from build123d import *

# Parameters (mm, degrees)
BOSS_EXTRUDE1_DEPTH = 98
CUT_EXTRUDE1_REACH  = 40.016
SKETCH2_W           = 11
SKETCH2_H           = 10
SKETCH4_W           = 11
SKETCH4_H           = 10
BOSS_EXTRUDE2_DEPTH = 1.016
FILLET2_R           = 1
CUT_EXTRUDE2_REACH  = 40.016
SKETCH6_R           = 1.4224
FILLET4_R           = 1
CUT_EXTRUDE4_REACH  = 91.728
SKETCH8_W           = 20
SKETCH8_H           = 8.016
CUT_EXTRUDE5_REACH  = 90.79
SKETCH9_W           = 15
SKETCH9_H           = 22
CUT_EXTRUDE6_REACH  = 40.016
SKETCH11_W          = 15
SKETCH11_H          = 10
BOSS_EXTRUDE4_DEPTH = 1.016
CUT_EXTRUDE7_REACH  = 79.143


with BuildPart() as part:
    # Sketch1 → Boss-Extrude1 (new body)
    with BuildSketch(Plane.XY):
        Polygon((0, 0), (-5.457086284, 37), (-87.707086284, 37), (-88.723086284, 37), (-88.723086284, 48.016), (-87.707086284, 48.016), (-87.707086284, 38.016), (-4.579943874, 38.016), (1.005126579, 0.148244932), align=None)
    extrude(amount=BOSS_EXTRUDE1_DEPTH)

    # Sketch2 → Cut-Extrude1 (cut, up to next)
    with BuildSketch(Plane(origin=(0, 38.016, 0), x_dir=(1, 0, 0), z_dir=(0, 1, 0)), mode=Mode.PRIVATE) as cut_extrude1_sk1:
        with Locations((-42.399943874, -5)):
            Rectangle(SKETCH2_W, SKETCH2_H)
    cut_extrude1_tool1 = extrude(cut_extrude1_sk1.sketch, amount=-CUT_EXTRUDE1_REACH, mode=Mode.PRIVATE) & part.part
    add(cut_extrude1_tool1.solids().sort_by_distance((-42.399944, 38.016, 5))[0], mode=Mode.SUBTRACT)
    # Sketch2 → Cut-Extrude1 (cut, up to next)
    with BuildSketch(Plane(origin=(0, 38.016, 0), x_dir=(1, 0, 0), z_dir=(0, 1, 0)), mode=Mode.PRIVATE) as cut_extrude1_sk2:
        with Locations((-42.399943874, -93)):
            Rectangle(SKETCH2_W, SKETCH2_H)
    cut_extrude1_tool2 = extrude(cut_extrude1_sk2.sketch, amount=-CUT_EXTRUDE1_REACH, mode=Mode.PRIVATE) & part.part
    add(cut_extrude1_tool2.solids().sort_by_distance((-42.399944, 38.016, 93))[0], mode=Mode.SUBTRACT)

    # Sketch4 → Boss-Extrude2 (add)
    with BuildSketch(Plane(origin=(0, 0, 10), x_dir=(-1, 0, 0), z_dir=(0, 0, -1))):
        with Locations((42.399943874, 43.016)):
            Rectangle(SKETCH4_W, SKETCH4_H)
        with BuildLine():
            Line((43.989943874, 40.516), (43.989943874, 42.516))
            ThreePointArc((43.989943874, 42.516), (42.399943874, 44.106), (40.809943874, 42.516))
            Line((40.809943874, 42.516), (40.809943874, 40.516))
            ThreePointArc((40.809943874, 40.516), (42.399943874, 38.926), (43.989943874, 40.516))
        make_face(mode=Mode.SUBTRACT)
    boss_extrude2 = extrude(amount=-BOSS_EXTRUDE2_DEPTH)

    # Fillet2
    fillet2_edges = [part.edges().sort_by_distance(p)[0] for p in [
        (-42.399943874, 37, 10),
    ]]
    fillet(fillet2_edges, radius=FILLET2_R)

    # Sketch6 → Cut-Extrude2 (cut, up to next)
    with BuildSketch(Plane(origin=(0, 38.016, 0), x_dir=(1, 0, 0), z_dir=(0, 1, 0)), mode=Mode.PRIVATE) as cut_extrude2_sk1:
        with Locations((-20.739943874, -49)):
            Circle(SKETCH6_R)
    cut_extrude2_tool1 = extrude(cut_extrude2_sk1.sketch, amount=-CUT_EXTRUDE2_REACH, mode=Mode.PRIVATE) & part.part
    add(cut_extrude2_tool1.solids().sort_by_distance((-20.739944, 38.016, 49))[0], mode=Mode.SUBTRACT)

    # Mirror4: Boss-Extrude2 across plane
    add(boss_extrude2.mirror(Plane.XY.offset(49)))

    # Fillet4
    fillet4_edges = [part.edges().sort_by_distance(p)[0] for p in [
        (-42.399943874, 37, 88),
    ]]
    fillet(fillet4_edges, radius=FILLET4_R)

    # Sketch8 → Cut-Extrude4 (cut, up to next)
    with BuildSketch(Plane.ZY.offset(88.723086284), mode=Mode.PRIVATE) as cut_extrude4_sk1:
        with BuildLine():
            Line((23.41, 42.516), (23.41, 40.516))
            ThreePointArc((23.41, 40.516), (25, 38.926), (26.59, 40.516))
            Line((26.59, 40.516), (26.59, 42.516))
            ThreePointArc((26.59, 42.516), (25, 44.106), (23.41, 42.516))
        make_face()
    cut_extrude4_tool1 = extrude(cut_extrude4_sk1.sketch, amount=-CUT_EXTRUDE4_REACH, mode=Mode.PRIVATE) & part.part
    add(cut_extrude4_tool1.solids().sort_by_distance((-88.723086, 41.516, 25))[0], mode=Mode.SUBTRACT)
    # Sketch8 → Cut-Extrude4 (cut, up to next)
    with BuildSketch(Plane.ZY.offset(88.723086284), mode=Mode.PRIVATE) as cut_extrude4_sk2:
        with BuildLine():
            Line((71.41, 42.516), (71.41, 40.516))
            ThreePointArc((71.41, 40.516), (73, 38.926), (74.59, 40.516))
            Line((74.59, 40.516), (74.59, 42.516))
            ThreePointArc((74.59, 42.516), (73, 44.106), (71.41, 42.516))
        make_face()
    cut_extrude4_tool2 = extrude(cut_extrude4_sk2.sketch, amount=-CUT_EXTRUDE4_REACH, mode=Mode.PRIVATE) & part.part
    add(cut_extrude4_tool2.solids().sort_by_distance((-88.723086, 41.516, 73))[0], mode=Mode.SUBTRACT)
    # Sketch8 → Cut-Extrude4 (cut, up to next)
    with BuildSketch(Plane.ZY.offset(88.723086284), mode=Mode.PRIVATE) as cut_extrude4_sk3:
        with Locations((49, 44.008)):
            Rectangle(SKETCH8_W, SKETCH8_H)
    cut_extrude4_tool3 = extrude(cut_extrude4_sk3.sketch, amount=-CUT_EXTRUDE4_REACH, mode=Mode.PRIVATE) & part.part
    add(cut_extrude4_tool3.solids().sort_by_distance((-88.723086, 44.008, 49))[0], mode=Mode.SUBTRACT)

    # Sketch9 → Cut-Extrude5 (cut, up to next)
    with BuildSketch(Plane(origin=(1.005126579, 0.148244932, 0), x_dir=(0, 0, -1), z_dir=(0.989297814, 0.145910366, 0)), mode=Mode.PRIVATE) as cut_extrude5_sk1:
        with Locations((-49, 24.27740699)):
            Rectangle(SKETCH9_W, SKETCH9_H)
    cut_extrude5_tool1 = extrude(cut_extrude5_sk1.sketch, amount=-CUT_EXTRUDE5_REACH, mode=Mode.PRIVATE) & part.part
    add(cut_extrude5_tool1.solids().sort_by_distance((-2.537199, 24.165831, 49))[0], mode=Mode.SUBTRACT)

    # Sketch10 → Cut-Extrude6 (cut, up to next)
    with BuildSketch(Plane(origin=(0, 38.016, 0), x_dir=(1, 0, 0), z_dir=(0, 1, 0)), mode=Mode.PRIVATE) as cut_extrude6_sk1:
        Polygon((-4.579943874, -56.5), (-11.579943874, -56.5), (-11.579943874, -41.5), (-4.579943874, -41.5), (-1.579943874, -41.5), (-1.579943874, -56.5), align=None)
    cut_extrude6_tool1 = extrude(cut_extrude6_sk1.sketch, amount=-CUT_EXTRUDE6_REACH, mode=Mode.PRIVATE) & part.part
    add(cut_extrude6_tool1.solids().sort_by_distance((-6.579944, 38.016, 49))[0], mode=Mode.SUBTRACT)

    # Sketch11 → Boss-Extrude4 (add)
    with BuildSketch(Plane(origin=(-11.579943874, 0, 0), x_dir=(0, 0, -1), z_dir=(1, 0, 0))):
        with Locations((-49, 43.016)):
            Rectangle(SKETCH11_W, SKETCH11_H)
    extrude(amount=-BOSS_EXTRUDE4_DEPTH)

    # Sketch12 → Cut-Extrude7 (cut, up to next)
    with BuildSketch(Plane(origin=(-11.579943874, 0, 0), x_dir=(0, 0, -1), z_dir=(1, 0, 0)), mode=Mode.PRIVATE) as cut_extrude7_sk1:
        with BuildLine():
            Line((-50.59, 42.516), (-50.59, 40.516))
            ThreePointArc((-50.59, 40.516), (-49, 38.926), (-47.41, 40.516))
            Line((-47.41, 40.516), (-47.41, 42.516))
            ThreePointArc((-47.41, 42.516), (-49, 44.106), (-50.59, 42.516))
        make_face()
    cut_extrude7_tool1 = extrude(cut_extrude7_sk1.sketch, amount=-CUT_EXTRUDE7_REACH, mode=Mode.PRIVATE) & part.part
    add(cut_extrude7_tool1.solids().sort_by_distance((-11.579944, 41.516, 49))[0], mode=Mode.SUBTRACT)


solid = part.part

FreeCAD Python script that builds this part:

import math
import FreeCAD as App
import Part
import Sketcher

V = App.Vector
Q = App.Units.Quantity


def edges_at(feature, points):
    """Names of the edges that pass closest to the given points."""
    edges = feature.Shape.Edges
    near = lambda p: min(range(len(edges)), key=lambda i: edges[i].distToShape(Part.Vertex(*p))[0])
    return sorted({f"Edge{near(p) + 1}" for p in points})

doc = App.newDocument("Part")
body = doc.addObject("PartDesign::Body", "Body")

# Sketch on XY plane
sketch1 = body.newObject("Sketcher::SketchObject", "Sketch")
sketch1.AttachmentSupport = (doc.getObject("XY_Plane"), [""])
sketch1.MapMode = "FlatFace"
sketch1.addGeometry([
    Part.LineSegment(V(-5.457086, 37, 0), V(0, 0, 0)),  # 0
    Part.LineSegment(V(0, 0, 0), V(1.005127, 0.148245, 0)),  # 1
    Part.LineSegment(V(1.005127, 0.148245, 0), V(-4.579944, 38.016, 0)),  # 2
    Part.LineSegment(V(-4.579944, 38.016, 0), V(-87.707086, 38.016, 0)),  # 3
    Part.LineSegment(V(-87.707086, 38.016, 0), V(-87.707086, 48.016, 0)),  # 4
    Part.LineSegment(V(-87.707086, 48.016, 0), V(-88.723086, 48.016, 0)),  # 5
    Part.LineSegment(V(-88.723086, 48.016, 0), V(-88.723086, 37, 0)),  # 6
    Part.LineSegment(V(-88.723086, 37, 0), V(-5.457086, 37, 0)),  # 7
], False)
sketch1.addConstraint([
    Sketcher.Constraint("Coincident", 0, 2, 1, 1),
    Sketcher.Constraint("Coincident", 1, 2, 2, 1),
    Sketcher.Constraint("Coincident", 2, 2, 3, 1),
    Sketcher.Constraint("Coincident", 3, 2, 4, 1),
    Sketcher.Constraint("Coincident", 4, 2, 5, 1),
    Sketcher.Constraint("Coincident", 5, 2, 6, 1),
    Sketcher.Constraint("Coincident", 6, 2, 7, 1),
    Sketcher.Constraint("Coincident", 7, 2, 0, 1),
    Sketcher.Constraint("Horizontal", 3),
    Sketcher.Constraint("Vertical", 4),
    Sketcher.Constraint("Horizontal", 5),
    Sketcher.Constraint("Vertical", 6),
    Sketcher.Constraint("Horizontal", 7),
    Sketcher.Constraint("Coincident", 0, 2, -1, 1),
    Sketcher.Constraint("Perpendicular", 0, 1),
    Sketcher.Constraint("Perpendicular", 1, 2),
    Sketcher.Constraint("DistanceY", 4, 1, 4, 2, Q("10 mm")),
    Sketcher.Constraint("DistanceY", -1, 1, 6, 2, Q("37 mm")),
    Sketcher.Constraint("Angle", 0, Q("-81.61 deg")),
    Sketcher.Constraint("DistanceX", 5, 2, 5, 1, Q("1.016 mm")),
    Sketcher.Constraint("DistanceX", 7, 1, 7, 2, Q("83.266 mm")),
    Sketcher.Constraint("DistanceY", 6, 2, 6, 1, Q("11.016 mm")),
    Sketcher.Constraint("Distance", 1, Q("1.016 mm")),
])
pad1 = body.newObject("PartDesign::Pad", "Pad")
pad1.Profile = sketch1
pad1.Length = 98

# Sketch on XZ plane
sketch2 = body.newObject("Sketcher::SketchObject", "Sketch001")
sketch2.AttachmentSupport = (doc.getObject("XZ_Plane"), [""])
sketch2.MapMode = "FlatFace"
sketch2.AttachmentOffset = App.Placement(V(0, 0, -38.016), App.Rotation())
sketch2.addGeometry([
    Part.LineSegment(V(-47.899944, 0, 0), V(-47.899944, 10, 0)),
    Part.LineSegment(V(-47.899944, 10, 0), V(-36.899944, 10, 0)),
    Part.LineSegment(V(-36.899944, 10, 0), V(-36.899944, 0, 0)),
    Part.LineSegment(V(-36.899944, 0, 0), V(-47.899944, 0, 0)),
], False)
sketch2.addConstraint([
    Sketcher.Constraint("Coincident", 0, 2, 1, 1),
    Sketcher.Constraint("Coincident", 1, 2, 2, 1),
    Sketcher.Constraint("Coincident", 2, 2, 3, 1),
    Sketcher.Constraint("Coincident", 3, 2, 0, 1),
    Sketcher.Constraint("Vertical", 0),
    Sketcher.Constraint("Horizontal", 1),
    Sketcher.Constraint("Vertical", 2),
    Sketcher.Constraint("Horizontal", 3),
    Sketcher.Constraint("PointOnObject", 2, 2, -1),
    Sketcher.Constraint("DistanceX", 1, 1, 1, 2, Q("11 mm")),
    Sketcher.Constraint("DistanceY", 0, 1, 0, 2, Q("10 mm")),
    Sketcher.Constraint("DistanceX", 0, 2, -1, 1, Q("47.899944 mm")),
])
pocket1 = body.newObject("PartDesign::Pocket", "Pocket")
pocket1.Profile = sketch2
pocket1.Type = "UpToFirst"
pocket1.Reversed = True

# Sketch on XZ plane
sketch3 = body.newObject("Sketcher::SketchObject", "Sketch002")
sketch3.AttachmentSupport = (doc.getObject("XZ_Plane"), [""])
sketch3.MapMode = "FlatFace"
sketch3.AttachmentOffset = App.Placement(V(0, 0, -38.016), App.Rotation())
sketch3.addGeometry([
    Part.LineSegment(V(-47.899944, 88, 0), V(-47.899944, 98, 0)),
    Part.LineSegment(V(-47.899944, 98, 0), V(-36.899944, 98, 0)),
    Part.LineSegment(V(-36.899944, 98, 0), V(-36.899944, 88, 0)),
    Part.LineSegment(V(-36.899944, 88, 0), V(-47.899944, 88, 0)),
], False)
sketch3.addConstraint([
    Sketcher.Constraint("Coincident", 0, 2, 1, 1),
    Sketcher.Constraint("Coincident", 1, 2, 2, 1),
    Sketcher.Constraint("Coincident", 2, 2, 3, 1),
    Sketcher.Constraint("Coincident", 3, 2, 0, 1),
    Sketcher.Constraint("Vertical", 0),
    Sketcher.Constraint("Horizontal", 1),
    Sketcher.Constraint("Vertical", 2),
    Sketcher.Constraint("Horizontal", 3),
    Sketcher.Constraint("DistanceX", 1, 1, 1, 2, Q("11 mm")),
    Sketcher.Constraint("DistanceY", 0, 1, 0, 2, Q("10 mm")),
    Sketcher.Constraint("DistanceY", -1, 1, 0, 2, Q("98 mm")),
    Sketcher.Constraint("DistanceX", 0, 2, -1, 1, Q("47.899944 mm")),
])
pocket2 = body.newObject("PartDesign::Pocket", "Pocket001")
pocket2.Profile = sketch3
pocket2.Type = "UpToFirst"
pocket2.Reversed = True

# Sketch on XY plane
sketch4 = body.newObject("Sketcher::SketchObject", "Sketch003")
sketch4.AttachmentSupport = (doc.getObject("XY_Plane"), [""])
sketch4.MapMode = "FlatFace"
sketch4.AttachmentOffset = App.Placement(V(0, 0, 10), App.Rotation())
sketch4.addGeometry([
    Part.LineSegment(V(-36.899944, 48.016, 0), V(-36.899944, 38.016, 0)),  # 0
    Part.LineSegment(V(-36.899944, 38.016, 0), V(-47.899944, 38.016, 0)),  # 1
    Part.LineSegment(V(-47.899944, 38.016, 0), V(-47.899944, 48.016, 0)),  # 2
    Part.LineSegment(V(-47.899944, 48.016, 0), V(-36.899944, 48.016, 0)),  # 3
    Part.LineSegment(V(-43.989944, 42.516, 0), V(-43.989944, 40.516, 0)),  # 4
    Part.ArcOfCircle(Part.Circle(V(-42.399944, 40.516, 0), V(0, 0, 1), 1.59), math.radians(180), math.radians(360)),  # 5
    Part.LineSegment(V(-40.809944, 40.516, 0), V(-40.809944, 42.516, 0)),  # 6
    Part.ArcOfCircle(Part.Circle(V(-42.399944, 42.516, 0), V(0, 0, 1), 1.59), math.radians(0), math.radians(180)),  # 7
], False)
sketch4.addConstraint([
    Sketcher.Constraint("Coincident", 0, 2, 1, 1),
    Sketcher.Constraint("Coincident", 1, 2, 2, 1),
    Sketcher.Constraint("Coincident", 2, 2, 3, 1),
    Sketcher.Constraint("Coincident", 3, 2, 0, 1),
    Sketcher.Constraint("Tangent", 4, 2, 5, 1),
    Sketcher.Constraint("Tangent", 5, 2, 6, 1),
    Sketcher.Constraint("Tangent", 6, 2, 7, 1),
    Sketcher.Constraint("Tangent", 7, 2, 4, 1),
    Sketcher.Constraint("Vertical", 0),
    Sketcher.Constraint("Horizontal", 1),
    Sketcher.Constraint("Vertical", 2),
    Sketcher.Constraint("Horizontal", 3),
    Sketcher.Constraint("Vertical", 4),
    Sketcher.Constraint("Vertical", 6),
    Sketcher.Constraint("DistanceX", 1, 2, 1, 1, Q("11 mm")),
    Sketcher.Constraint("DistanceY", 0, 2, 0, 1, Q("10 mm")),
    Sketcher.Constraint("DistanceY", 4, 2, 4, 1, Q("2 mm")),
    Sketcher.Constraint("Radius", 5, Q("1.59 mm")),
    Sketcher.Constraint("DistanceX", 5, 3, 0, 2, Q("5.5 mm")),
    Sketcher.Constraint("DistanceY", 0, 2, 5, 3, Q("2.5 mm")),
    Sketcher.Constraint("DistanceY", -1, 1, 5, 3, Q("40.516 mm")),
    Sketcher.Constraint("DistanceX", 5, 3, -1, 1, Q("42.399944 mm")),
])
pad2 = body.newObject("PartDesign::Pad", "Pad001")
pad2.Profile = sketch4
pad2.Length = 1.016
doc.recompute()

fillet = body.newObject("PartDesign::Fillet", "Fillet")
fillet.Base = (pad2, edges_at(pad2, [(-42.4, 37, 10)]))
fillet.Radius = 1

# Sketch on XZ plane
sketch5 = body.newObject("Sketcher::SketchObject", "Sketch004")
sketch5.AttachmentSupport = (doc.getObject("XZ_Plane"), [""])
sketch5.MapMode = "FlatFace"
sketch5.AttachmentOffset = App.Placement(V(0, 0, -38.016), App.Rotation())
sketch5.addGeometry(Part.Circle(V(-20.739944, 49, 0), V(0, 0, 1), 1.4224), False)
sketch5.addConstraint([
    Sketcher.Constraint("DistanceY", -1, 1, 0, 3, Q("49 mm")),
    Sketcher.Constraint("Diameter", 0, Q("2.8448 mm")),
    Sketcher.Constraint("DistanceX", 0, 3, -1, 1, Q("20.739944 mm")),
])
pocket3 = body.newObject("PartDesign::Pocket", "Pocket002")
pocket3.Profile = sketch5
pocket3.Type = "UpToFirst"
pocket3.Reversed = True
doc.recompute()

datumplane = body.newObject("PartDesign::Plane", "DatumPlane")
datumplane.AttachmentSupport = (doc.getObject("XY_Plane"), [""])
datumplane.MapMode = "FlatFace"
datumplane.AttachmentOffset = App.Placement(V(0, 0, 49), App.Rotation())
mirrored = body.newObject("PartDesign::Mirrored", "Mirrored")
mirrored.Originals = [pad2]
mirrored.MirrorPlane = (datumplane, [""])
body.Tip = mirrored
doc.recompute()

fillet2 = body.newObject("PartDesign::Fillet", "Fillet001")
fillet2.Base = (mirrored, edges_at(mirrored, [(-42.4, 37, 88)]))
fillet2.Radius = 1

# Sketch on YZ plane
sketch6 = body.newObject("Sketcher::SketchObject", "Sketch005")
sketch6.AttachmentSupport = (doc.getObject("YZ_Plane"), [""])
sketch6.MapMode = "FlatFace"
sketch6.AttachmentOffset = App.Placement(V(0, 0, -88.723086), App.Rotation())
sketch6.addGeometry([
    Part.LineSegment(V(42.516, 23.41, 0), V(40.516, 23.41, 0)),
    Part.ArcOfCircle(Part.Circle(V(40.516, 25, 0), V(0, 0, 1), 1.59), math.radians(90), math.radians(270)),
    Part.LineSegment(V(40.516, 26.59, 0), V(42.516, 26.59, 0)),
    Part.ArcOfCircle(Part.Circle(V(42.516, 25, 0), V(0, 0, 1), 1.59), math.radians(-90), math.radians(90)),
], False)
sketch6.addConstraint([
    Sketcher.Constraint("Tangent", 0, 2, 1, 2),
    Sketcher.Constraint("Tangent", 1, 1, 2, 1),
    Sketcher.Constraint("Tangent", 2, 2, 3, 2),
    Sketcher.Constraint("Tangent", 3, 1, 0, 1),
    Sketcher.Constraint("Horizontal", 0),
    Sketcher.Constraint("Horizontal", 2),
    Sketcher.Constraint("DistanceX", 0, 2, 0, 1, Q("2 mm")),
    Sketcher.Constraint("Radius", 1, Q("1.59 mm")),
    Sketcher.Constraint("DistanceY", -1, 1, 1, 3, Q("25 mm")),
    Sketcher.Constraint("DistanceX", -1, 1, 1, 3, Q("40.516 mm")),
])
pocket4 = body.newObject("PartDesign::Pocket", "Pocket003")
pocket4.Profile = sketch6
pocket4.Type = "UpToFirst"
pocket4.Reversed = True

# Sketch on YZ plane
sketch7 = body.newObject("Sketcher::SketchObject", "Sketch006")
sketch7.AttachmentSupport = (doc.getObject("YZ_Plane"), [""])
sketch7.MapMode = "FlatFace"
sketch7.AttachmentOffset = App.Placement(V(0, 0, -88.723086), App.Rotation())
sketch7.addGeometry([
    Part.LineSegment(V(42.516, 71.41, 0), V(40.516, 71.41, 0)),
    Part.ArcOfCircle(Part.Circle(V(40.516, 73, 0), V(0, 0, 1), 1.59), math.radians(90), math.radians(270)),
    Part.LineSegment(V(40.516, 74.59, 0), V(42.516, 74.59, 0)),
    Part.ArcOfCircle(Part.Circle(V(42.516, 73, 0), V(0, 0, 1), 1.59), math.radians(-90), math.radians(90)),
], False)
sketch7.addConstraint([
    Sketcher.Constraint("Tangent", 0, 2, 1, 2),
    Sketcher.Constraint("Tangent", 1, 1, 2, 1),
    Sketcher.Constraint("Tangent", 2, 2, 3, 2),
    Sketcher.Constraint("Tangent", 3, 1, 0, 1),
    Sketcher.Constraint("Horizontal", 0),
    Sketcher.Constraint("Horizontal", 2),
    Sketcher.Constraint("DistanceX", 0, 2, 0, 1, Q("2 mm")),
    Sketcher.Constraint("Radius", 1, Q("1.59 mm")),
    Sketcher.Constraint("DistanceY", -1, 1, 1, 3, Q("73 mm")),
    Sketcher.Constraint("DistanceX", -1, 1, 1, 3, Q("40.516 mm")),
])
pocket5 = body.newObject("PartDesign::Pocket", "Pocket004")
pocket5.Profile = sketch7
pocket5.Type = "UpToFirst"
pocket5.Reversed = True

# Sketch on YZ plane
sketch8 = body.newObject("Sketcher::SketchObject", "Sketch007")
sketch8.AttachmentSupport = (doc.getObject("YZ_Plane"), [""])
sketch8.MapMode = "FlatFace"
sketch8.AttachmentOffset = App.Placement(V(0, 0, -88.723086), App.Rotation())
sketch8.addGeometry([
    Part.LineSegment(V(48.016, 39, 0), V(40, 39, 0)),
    Part.LineSegment(V(40, 39, 0), V(40, 59, 0)),
    Part.LineSegment(V(40, 59, 0), V(48.016, 59, 0)),
    Part.LineSegment(V(48.016, 59, 0), V(48.016, 39, 0)),
], False)
sketch8.addConstraint([
    Sketcher.Constraint("Coincident", 0, 2, 1, 1),
    Sketcher.Constraint("Coincident", 1, 2, 2, 1),
    Sketcher.Constraint("Coincident", 2, 2, 3, 1),
    Sketcher.Constraint("Coincident", 3, 2, 0, 1),
    Sketcher.Constraint("Horizontal", 0),
    Sketcher.Constraint("Vertical", 1),
    Sketcher.Constraint("Horizontal", 2),
    Sketcher.Constraint("Vertical", 3),
    Sketcher.Constraint("DistanceY", 1, 1, 1, 2, Q("20 mm")),
    Sketcher.Constraint("DistanceX", -1, 1, 0, 2, Q("40 mm")),
    Sketcher.Constraint("DistanceY", -1, 1, 0, 2, Q("39 mm")),
    Sketcher.Constraint("DistanceX", 0, 2, 0, 1, Q("8.016 mm")),
])
pocket6 = body.newObject("PartDesign::Pocket", "Pocket005")
pocket6.Profile = sketch8
pocket6.Type = "UpToFirst"
pocket6.Reversed = True

# Sketch on an angled plane
sketch9 = body.newObject("Sketcher::SketchObject", "Sketch008")
sketch9.Placement = App.Placement(V(1.005127, 0.148245, 0), App.Rotation(V(0, 0, -1), V(-0.145910366, 0.989297814, 0), V(0.989297814, 0.145910366, 0), "ZXY"))
sketch9.addGeometry([
    Part.LineSegment(V(-56.5, 35.277407, 0), V(-56.5, 13.277407, 0)),
    Part.LineSegment(V(-56.5, 13.277407, 0), V(-41.5, 13.277407, 0)),
    Part.LineSegment(V(-41.5, 13.277407, 0), V(-41.5, 35.277407, 0)),
    Part.LineSegment(V(-41.5, 35.277407, 0), V(-56.5, 35.277407, 0)),
], False)
sketch9.addConstraint([
    Sketcher.Constraint("Coincident", 0, 2, 1, 1),
    Sketcher.Constraint("Coincident", 1, 2, 2, 1),
    Sketcher.Constraint("Coincident", 2, 2, 3, 1),
    Sketcher.Constraint("Coincident", 3, 2, 0, 1),
    Sketcher.Constraint("Vertical", 0),
    Sketcher.Constraint("Horizontal", 1),
    Sketcher.Constraint("Vertical", 2),
    Sketcher.Constraint("Horizontal", 3),
    Sketcher.Constraint("DistanceX", 1, 1, 1, 2, Q("15 mm")),
    Sketcher.Constraint("DistanceY", 0, 2, 0, 1, Q("22 mm")),
    Sketcher.Constraint("DistanceX", 0, 2, -1, 1, Q("56.5 mm")),
    Sketcher.Constraint("DistanceY", -1, 1, 0, 2, Q("13.277407 mm")),
])
pocket7 = body.newObject("PartDesign::Pocket", "Pocket006")
pocket7.Profile = sketch9
pocket7.Type = "UpToFirst"

# Sketch on XZ plane
sketch10 = body.newObject("Sketcher::SketchObject", "Sketch009")
sketch10.AttachmentSupport = (doc.getObject("XZ_Plane"), [""])
sketch10.MapMode = "FlatFace"
sketch10.AttachmentOffset = App.Placement(V(0, 0, -38.016), App.Rotation())
sketch10.addGeometry([
    Part.LineSegment(V(-11.579944, 56.5, 0), V(-1.579944, 56.5, 0)),
    Part.LineSegment(V(-1.579944, 56.5, 0), V(-1.579944, 41.5, 0)),
    Part.LineSegment(V(-1.579944, 41.5, 0), V(-11.579944, 41.5, 0)),
    Part.LineSegment(V(-11.579944, 41.5, 0), V(-11.579944, 56.5, 0)),
], False)
sketch10.addConstraint([
    Sketcher.Constraint("Coincident", 0, 2, 1, 1),
    Sketcher.Constraint("Coincident", 1, 2, 2, 1),
    Sketcher.Constraint("Coincident", 2, 2, 3, 1),
    Sketcher.Constraint("Coincident", 3, 2, 0, 1),
    Sketcher.Constraint("Horizontal", 0),
    Sketcher.Constraint("Vertical", 1),
    Sketcher.Constraint("Horizontal", 2),
    Sketcher.Constraint("Vertical", 3),
    Sketcher.Constraint("DistanceX", 0, 1, 0, 2, Q("10 mm")),
    Sketcher.Constraint("DistanceY", 1, 2, 1, 1, Q("15 mm")),
    Sketcher.Constraint("DistanceY", -1, 1, 0, 2, Q("56.5 mm")),
    Sketcher.Constraint("DistanceX", 0, 2, -1, 1, Q("1.579944 mm")),
])
pocket8 = body.newObject("PartDesign::Pocket", "Pocket007")
pocket8.Profile = sketch10
pocket8.Length = 3.116138
pocket8.Reversed = True

# Sketch on YZ plane
sketch11 = body.newObject("Sketcher::SketchObject", "Sketch010")
sketch11.AttachmentSupport = (doc.getObject("YZ_Plane"), [""])
sketch11.MapMode = "FlatFace"
sketch11.AttachmentOffset = App.Placement(V(0, 0, -11.579944), App.Rotation())
sketch11.addGeometry([
    Part.LineSegment(V(48.016, 56.5, 0), V(38.016, 56.5, 0)),
    Part.LineSegment(V(38.016, 56.5, 0), V(38.016, 41.5, 0)),
    Part.LineSegment(V(38.016, 41.5, 0), V(48.016, 41.5, 0)),
    Part.LineSegment(V(48.016, 41.5, 0), V(48.016, 56.5, 0)),
], False)
sketch11.addConstraint([
    Sketcher.Constraint("Coincident", 0, 2, 1, 1),
    Sketcher.Constraint("Coincident", 1, 2, 2, 1),
    Sketcher.Constraint("Coincident", 2, 2, 3, 1),
    Sketcher.Constraint("Coincident", 3, 2, 0, 1),
    Sketcher.Constraint("Horizontal", 0),
    Sketcher.Constraint("Vertical", 1),
    Sketcher.Constraint("Horizontal", 2),
    Sketcher.Constraint("Vertical", 3),
    Sketcher.Constraint("DistanceX", 0, 2, 0, 1, Q("10 mm")),
    Sketcher.Constraint("DistanceY", 1, 2, 1, 1, Q("15 mm")),
    Sketcher.Constraint("DistanceY", -1, 1, 0, 2, Q("56.5 mm")),
    Sketcher.Constraint("DistanceX", -1, 1, 0, 2, Q("38.016 mm")),
])
pad3 = body.newObject("PartDesign::Pad", "Pad002")
pad3.Profile = sketch11
pad3.Length = 1.016
pad3.Reversed = True

# Sketch on YZ plane
sketch12 = body.newObject("Sketcher::SketchObject", "Sketch011")
sketch12.AttachmentSupport = (doc.getObject("YZ_Plane"), [""])
sketch12.MapMode = "FlatFace"
sketch12.AttachmentOffset = App.Placement(V(0, 0, -11.579944), App.Rotation())
sketch12.addGeometry([
    Part.LineSegment(V(42.516, 50.59, 0), V(40.516, 50.59, 0)),
    Part.ArcOfCircle(Part.Circle(V(40.516, 49, 0), V(0, 0, 1), 1.59), math.radians(90), math.radians(270)),
    Part.LineSegment(V(40.516, 47.41, 0), V(42.516, 47.41, 0)),
    Part.ArcOfCircle(Part.Circle(V(42.516, 49, 0), V(0, 0, 1), 1.59), math.radians(-90), math.radians(90)),
], False)
sketch12.addConstraint([
    Sketcher.Constraint("Tangent", 0, 2, 1, 1),
    Sketcher.Constraint("Tangent", 1, 2, 2, 1),
    Sketcher.Constraint("Tangent", 2, 2, 3, 1),
    Sketcher.Constraint("Tangent", 3, 2, 0, 1),
    Sketcher.Constraint("Horizontal", 0),
    Sketcher.Constraint("Horizontal", 2),
    Sketcher.Constraint("DistanceX", 0, 2, 0, 1, Q("2 mm")),
    Sketcher.Constraint("Radius", 1, Q("1.59 mm")),
    Sketcher.Constraint("DistanceY", -1, 1, 1, 3, Q("49 mm")),
    Sketcher.Constraint("DistanceX", -1, 1, 1, 3, Q("40.516 mm")),
])
pocket9 = body.newObject("PartDesign::Pocket", "Pocket008")
pocket9.Profile = sketch12
pocket9.Type = "UpToFirst"

doc.recompute()
